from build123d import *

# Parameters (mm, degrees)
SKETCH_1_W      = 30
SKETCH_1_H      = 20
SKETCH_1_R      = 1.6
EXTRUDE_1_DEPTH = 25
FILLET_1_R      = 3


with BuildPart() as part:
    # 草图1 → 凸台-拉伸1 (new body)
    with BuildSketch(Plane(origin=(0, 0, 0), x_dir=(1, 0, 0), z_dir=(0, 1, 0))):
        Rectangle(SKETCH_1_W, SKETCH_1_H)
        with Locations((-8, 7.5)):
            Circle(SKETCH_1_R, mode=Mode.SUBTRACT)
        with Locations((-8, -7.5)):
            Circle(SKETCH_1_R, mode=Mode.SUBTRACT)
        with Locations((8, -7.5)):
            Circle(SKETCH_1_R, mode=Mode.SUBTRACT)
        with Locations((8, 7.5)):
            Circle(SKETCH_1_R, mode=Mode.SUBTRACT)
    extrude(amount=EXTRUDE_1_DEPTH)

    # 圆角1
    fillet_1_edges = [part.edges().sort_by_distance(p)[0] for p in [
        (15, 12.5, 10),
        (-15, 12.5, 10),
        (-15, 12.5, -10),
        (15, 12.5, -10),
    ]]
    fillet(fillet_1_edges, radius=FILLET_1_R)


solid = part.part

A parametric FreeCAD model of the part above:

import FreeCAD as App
import Part
import Sketcher

V = App.Vector


def edges_at(feature, points):
    """Names of the edges that pass closest to the given points."""
    edges = feature.Shape.Edges
    near = lambda p: min(range(len(edges)), key=lambda i: edges[i].distToShape(Part.Vertex(*p))[0])
    return sorted({f"Edge{near(p) + 1}" for p in points})


def add_polygon(sketch, points):
    """Adds a closed chain of lines whose ends are joined by coincident constraints."""
    first, n = sketch.GeometryCount, len(points)
    for a, b in zip(points, points[1:] + points[:1]):
        sketch.addGeometry(Part.LineSegment(App.Vector(*a, 0), App.Vector(*b, 0)), False)
    for i in range(n):
        sketch.addConstraint(Sketcher.Constraint("Coincident", first + i, 2, first + (i + 1) % n, 1))

doc = App.newDocument("Part")
body = doc.addObject("PartDesign::Body", "Body")

sketch1 = body.newObject("Sketcher::SketchObject", "Sketch")
sketch1.AttachmentSupport = (doc.getObject("XZ_Plane"), [""])
sketch1.MapMode = "FlatFace"
add_polygon(sketch1, [(-15, -10), (-15, 10), (15, 10), (15, -10)])
sketch1.addGeometry(Part.Circle(V(-8, 7.5, 0), V(0, 0, 1), 1.6), False)
sketch1.addGeometry(Part.Circle(V(8, 7.5, 0), V(0, 0, 1), 1.6), False)
sketch1.addGeometry(Part.Circle(V(-8, -7.5, 0), V(0, 0, 1), 1.6), False)
sketch1.addGeometry(Part.Circle(V(8, -7.5, 0), V(0, 0, 1), 1.6), False)
sketch1.addConstraint([
    Sketcher.Constraint("Vertical", 0),
    Sketcher.Constraint("Horizontal", 1),
    Sketcher.Constraint("Vertical", 2),
    Sketcher.Constraint("Horizontal", 3),
    Sketcher.Constraint("Equal", 4, 5),
    Sketcher.Constraint("Equal", 5, 6),
    Sketcher.Constraint("Equal", 6, 7),
    Sketcher.Constraint("Symmetric", 5, 3, 6, 3, -1, 1),
    Sketcher.Constraint("Symmetric", 4, 3, 7, 3, -1, 1),
    Sketcher.Constraint("Symmetric", 0, 2, 2, 2, -1, 1),
    Sketcher.Constraint("Symmetric", 4, 3, 5, 3, -2),
    Sketcher.Constraint("Diameter", 4, 3.2),
    Sketcher.Constraint("DistanceX", 1, 1, 1, 2, 30.0),
    Sketcher.Constraint("DistanceY", 0, 1, 0, 2, 20.0),
    Sketcher.Constraint("DistanceX", 4, 3, -1, 1, 8.0),
    Sketcher.Constraint("DistanceY", 6, 3, 4, 3, 15.0),
])
pad1 = body.newObject("PartDesign::Pad", "Pad")
pad1.Profile = sketch1
pad1.Length = 25
pad1.Reversed = True
doc.recompute()

fillet = body.newObject("PartDesign::Fillet", "Fillet")
fillet.Base = (pad1, edges_at(pad1, [
    (15, 12.5, 10),
    (-15, 12.5, 10),
    (-15, 12.5, -10),
    (15, 12.5, -10),
]))
fillet.Radius = 3

doc.recompute()
